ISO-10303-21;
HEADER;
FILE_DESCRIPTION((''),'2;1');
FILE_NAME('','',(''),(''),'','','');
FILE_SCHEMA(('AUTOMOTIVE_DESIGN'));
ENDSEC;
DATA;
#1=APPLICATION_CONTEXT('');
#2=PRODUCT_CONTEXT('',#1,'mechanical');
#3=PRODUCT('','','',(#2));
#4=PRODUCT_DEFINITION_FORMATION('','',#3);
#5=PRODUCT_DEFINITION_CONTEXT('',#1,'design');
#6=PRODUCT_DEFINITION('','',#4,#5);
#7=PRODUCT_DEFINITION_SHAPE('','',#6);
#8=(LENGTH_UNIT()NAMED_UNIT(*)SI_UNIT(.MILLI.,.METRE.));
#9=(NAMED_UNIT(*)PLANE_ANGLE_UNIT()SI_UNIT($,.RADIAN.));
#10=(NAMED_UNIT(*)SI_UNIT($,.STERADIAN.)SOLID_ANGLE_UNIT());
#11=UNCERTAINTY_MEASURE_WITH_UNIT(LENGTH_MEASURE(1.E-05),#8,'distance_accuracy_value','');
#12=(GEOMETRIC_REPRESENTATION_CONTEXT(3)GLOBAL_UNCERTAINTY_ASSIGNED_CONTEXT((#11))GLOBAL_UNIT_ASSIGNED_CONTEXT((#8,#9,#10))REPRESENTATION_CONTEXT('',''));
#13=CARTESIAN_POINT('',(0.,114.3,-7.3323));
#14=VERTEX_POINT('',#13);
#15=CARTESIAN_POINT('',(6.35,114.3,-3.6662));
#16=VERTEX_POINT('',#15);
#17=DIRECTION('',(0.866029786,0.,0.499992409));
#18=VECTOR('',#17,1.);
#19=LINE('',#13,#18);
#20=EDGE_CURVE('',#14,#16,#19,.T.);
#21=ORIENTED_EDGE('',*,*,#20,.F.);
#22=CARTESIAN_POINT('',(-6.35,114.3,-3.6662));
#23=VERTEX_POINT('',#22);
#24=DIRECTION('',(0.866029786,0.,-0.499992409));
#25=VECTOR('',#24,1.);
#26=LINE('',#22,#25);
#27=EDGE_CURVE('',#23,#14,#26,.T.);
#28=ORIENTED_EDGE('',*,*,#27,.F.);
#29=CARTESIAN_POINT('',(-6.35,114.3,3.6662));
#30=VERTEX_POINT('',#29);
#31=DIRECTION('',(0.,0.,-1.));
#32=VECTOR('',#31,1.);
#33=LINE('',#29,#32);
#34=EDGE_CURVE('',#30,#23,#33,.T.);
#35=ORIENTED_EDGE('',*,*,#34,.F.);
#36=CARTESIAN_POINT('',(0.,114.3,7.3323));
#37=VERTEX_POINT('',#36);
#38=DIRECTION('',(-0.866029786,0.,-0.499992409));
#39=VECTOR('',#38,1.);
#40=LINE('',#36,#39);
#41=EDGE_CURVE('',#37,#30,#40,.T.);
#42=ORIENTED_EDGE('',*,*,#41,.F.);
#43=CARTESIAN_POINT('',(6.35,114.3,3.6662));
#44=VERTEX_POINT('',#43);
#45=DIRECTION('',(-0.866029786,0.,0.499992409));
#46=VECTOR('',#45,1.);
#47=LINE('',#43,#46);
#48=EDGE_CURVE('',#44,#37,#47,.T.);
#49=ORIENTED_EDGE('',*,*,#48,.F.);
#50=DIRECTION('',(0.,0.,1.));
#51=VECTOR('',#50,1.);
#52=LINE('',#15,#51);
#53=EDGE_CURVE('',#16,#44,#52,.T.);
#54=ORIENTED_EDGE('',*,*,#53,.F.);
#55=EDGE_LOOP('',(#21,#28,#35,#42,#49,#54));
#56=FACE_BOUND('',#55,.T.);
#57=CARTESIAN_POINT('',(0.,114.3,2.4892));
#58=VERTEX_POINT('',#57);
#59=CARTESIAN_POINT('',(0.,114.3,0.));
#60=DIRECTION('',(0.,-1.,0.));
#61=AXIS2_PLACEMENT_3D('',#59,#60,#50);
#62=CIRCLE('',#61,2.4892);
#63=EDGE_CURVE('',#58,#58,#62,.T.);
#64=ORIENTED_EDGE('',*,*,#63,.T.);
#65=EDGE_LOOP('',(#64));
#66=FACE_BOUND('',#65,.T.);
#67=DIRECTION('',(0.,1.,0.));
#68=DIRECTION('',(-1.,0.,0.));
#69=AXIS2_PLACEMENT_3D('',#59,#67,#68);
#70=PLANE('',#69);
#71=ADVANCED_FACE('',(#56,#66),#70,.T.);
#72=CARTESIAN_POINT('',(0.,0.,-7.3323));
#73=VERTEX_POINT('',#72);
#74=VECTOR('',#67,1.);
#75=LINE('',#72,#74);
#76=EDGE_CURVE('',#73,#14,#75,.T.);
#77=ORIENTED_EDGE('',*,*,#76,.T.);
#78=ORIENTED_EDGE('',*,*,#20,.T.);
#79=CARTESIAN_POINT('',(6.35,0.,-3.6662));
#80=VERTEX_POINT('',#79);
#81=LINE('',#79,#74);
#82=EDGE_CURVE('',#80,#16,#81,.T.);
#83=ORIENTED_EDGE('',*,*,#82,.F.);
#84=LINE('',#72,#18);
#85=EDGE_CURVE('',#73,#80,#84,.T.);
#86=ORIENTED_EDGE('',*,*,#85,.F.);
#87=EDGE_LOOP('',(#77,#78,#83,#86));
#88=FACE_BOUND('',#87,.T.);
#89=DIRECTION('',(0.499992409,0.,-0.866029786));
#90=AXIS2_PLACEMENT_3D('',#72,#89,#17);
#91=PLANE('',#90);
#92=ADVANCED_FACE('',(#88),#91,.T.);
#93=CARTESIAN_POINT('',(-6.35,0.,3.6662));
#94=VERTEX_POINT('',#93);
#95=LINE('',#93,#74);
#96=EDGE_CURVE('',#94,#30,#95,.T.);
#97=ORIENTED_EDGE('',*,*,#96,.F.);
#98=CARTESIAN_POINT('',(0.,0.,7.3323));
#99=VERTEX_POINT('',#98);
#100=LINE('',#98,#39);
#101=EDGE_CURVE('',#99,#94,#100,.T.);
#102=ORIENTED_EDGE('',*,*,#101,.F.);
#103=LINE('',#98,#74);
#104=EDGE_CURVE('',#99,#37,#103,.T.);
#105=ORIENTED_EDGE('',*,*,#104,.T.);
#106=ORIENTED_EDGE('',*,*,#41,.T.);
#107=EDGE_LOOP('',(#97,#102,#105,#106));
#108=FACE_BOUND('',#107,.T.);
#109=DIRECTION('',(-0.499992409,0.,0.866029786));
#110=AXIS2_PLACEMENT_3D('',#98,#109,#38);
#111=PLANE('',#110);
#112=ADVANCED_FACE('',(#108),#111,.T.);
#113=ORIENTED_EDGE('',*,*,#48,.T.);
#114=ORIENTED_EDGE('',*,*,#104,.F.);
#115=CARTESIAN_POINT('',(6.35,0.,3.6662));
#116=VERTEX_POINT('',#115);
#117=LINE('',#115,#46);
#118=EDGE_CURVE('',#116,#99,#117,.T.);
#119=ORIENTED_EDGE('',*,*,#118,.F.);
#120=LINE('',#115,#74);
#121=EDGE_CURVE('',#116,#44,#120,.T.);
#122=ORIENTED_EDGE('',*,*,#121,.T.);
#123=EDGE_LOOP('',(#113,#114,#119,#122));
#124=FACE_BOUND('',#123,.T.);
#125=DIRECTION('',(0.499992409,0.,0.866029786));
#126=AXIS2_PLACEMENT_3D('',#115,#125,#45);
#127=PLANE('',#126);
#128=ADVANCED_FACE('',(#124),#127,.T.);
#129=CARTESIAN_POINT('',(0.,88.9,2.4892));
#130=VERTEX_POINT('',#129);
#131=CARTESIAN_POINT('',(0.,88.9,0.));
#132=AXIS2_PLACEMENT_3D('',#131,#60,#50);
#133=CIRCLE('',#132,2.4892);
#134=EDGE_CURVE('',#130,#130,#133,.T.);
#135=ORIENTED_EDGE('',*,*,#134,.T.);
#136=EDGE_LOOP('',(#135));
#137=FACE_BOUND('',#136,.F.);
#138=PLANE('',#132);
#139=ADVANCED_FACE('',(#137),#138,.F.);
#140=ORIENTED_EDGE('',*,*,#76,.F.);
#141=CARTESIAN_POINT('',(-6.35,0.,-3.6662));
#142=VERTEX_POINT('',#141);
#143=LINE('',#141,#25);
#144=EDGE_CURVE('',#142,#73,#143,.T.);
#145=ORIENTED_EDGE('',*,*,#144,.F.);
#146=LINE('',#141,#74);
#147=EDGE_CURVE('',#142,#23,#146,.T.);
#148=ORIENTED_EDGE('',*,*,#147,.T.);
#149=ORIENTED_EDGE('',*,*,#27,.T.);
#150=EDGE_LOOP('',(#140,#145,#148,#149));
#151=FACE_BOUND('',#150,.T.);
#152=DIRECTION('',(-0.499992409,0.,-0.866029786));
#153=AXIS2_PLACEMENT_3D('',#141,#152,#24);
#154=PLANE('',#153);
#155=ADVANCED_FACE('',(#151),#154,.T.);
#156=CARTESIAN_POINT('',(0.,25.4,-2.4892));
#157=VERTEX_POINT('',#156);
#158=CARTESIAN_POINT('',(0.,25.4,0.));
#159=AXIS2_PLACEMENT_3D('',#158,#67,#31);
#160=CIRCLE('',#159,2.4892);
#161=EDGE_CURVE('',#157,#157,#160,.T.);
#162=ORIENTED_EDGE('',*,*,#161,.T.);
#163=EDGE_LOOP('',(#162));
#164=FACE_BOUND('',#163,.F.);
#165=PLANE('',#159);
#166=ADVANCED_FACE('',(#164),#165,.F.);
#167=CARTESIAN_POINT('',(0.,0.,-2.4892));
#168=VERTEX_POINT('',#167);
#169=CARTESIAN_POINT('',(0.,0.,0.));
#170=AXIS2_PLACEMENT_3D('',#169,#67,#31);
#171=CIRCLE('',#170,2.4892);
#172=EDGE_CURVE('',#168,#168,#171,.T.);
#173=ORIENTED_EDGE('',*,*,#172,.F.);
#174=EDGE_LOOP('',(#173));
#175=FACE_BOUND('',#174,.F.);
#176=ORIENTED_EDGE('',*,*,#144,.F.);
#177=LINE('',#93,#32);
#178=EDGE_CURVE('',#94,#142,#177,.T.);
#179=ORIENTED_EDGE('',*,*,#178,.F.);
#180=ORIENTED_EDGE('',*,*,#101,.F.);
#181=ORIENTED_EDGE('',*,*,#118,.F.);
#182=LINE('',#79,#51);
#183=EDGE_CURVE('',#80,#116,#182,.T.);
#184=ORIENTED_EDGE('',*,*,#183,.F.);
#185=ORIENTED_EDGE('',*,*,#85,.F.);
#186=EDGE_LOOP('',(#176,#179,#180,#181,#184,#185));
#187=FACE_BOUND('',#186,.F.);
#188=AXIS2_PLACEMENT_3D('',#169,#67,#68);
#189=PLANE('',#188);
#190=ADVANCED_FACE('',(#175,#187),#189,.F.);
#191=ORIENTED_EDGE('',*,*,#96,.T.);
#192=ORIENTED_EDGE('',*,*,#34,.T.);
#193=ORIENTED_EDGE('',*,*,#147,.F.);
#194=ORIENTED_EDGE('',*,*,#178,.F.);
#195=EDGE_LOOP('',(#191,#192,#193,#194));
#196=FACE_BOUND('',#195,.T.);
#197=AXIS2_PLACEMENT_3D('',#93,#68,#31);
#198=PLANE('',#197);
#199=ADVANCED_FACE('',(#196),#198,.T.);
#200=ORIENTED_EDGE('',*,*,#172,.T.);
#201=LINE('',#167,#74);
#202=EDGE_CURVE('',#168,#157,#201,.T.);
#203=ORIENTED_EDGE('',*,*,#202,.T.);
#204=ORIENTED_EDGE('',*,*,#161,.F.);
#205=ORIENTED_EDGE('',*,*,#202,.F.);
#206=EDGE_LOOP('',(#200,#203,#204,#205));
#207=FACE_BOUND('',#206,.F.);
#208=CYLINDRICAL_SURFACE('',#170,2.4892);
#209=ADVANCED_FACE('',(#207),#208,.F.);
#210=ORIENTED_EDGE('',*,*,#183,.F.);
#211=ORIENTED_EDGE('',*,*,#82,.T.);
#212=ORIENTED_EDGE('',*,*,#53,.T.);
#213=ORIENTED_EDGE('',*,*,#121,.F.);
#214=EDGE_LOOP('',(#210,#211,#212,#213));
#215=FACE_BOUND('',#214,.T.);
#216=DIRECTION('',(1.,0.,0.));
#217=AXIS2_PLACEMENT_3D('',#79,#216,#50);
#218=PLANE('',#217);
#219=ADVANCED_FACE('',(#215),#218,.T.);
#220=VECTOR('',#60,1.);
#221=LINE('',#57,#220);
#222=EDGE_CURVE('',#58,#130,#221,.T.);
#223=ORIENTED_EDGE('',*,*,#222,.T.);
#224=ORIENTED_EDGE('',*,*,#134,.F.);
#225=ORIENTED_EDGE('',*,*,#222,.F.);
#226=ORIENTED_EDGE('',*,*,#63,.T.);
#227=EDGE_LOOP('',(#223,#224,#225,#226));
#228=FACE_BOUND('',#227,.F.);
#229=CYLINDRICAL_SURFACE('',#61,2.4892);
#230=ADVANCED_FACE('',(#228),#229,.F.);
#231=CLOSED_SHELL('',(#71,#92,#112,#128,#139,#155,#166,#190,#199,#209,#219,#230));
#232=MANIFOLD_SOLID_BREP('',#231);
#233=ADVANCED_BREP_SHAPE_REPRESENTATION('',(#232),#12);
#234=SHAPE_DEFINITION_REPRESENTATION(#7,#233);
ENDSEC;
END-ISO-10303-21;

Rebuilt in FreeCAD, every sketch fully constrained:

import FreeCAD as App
import Part
import Sketcher

V = App.Vector
Q = App.Units.Quantity


def add_polygon(sketch, points):
    """Adds a closed chain of lines whose ends are joined by coincident constraints."""
    first, n = sketch.GeometryCount, len(points)
    for a, b in zip(points, points[1:] + points[:1]):
        sketch.addGeometry(Part.LineSegment(App.Vector(*a, 0), App.Vector(*b, 0)), False)
    for i in range(n):
        sketch.addConstraint(Sketcher.Constraint("Coincident", first + i, 2, first + (i + 1) % n, 1))

doc = App.newDocument("Part")
params = doc.addObject("Spreadsheet::Sheet", "Params")
for row, (alias, value) in enumerate([
    ("pad1_length", "4.5 in"),
    ("sketch2_diameter", "0.196 in"),
    ("hole_diameter", "0.196 in"),
    ("hole_depth", "1 in"),
    ("sketch3_diameter", "0.196 in"),
    ("hole2_diameter", "0.196 in"),
    ("hole2_depth", "1 in"),
], start=1):
    params.set(f"A{row}", alias)
    params.set(f"B{row}", "=" + value)
    params.setAlias(f"B{row}", alias)

body = doc.addObject("PartDesign::Body", "Body")

# Sketch on XZ plane
sketch1 = body.newObject("Sketcher::SketchObject", "Sketch")
sketch1.AttachmentSupport = (doc.getObject("XZ_Plane"), [""])
sketch1.MapMode = "FlatFace"
add_polygon(sketch1, [(0, -7.3323), (-6.35, -3.6662), (-6.35, 3.6662), (0, 7.3323), (6.35, 3.6662), (6.35, -3.6662)])  # lines 0-5
sketch1.addConstraint([
    Sketcher.Constraint("Vertical", 1),
    Sketcher.Constraint("Vertical", 4),
    Sketcher.Constraint("Symmetric", 0, 2, 3, 2, -1, 1),
    Sketcher.Constraint("Symmetric", 2, 2, 5, 2, -1, 1),
    Sketcher.Constraint("PointOnObject", 2, 2, -2),
    Sketcher.Constraint("Parallel", 2, 5),
    Sketcher.Constraint("Horizontal", 1, 2, 3, 2),
    Sketcher.Constraint("DistanceX", 1, 2, 3, 2, Q("0.5 in")),
    Sketcher.Constraint("Angle", 0, Q("150.0005 deg")),
    Sketcher.Constraint("DistanceY", 0, 2, 2, 2, Q("0.433 in")),
])
pad1 = body.newObject("PartDesign::Pad", "Pad")
pad1.Profile = sketch1
pad1.setExpression("Length", "Params.pad1_length")
pad1.Reversed = True

# Sketch on XZ plane
sketch2 = body.newObject("Sketcher::SketchObject", "Sketch001")
sketch2.AttachmentSupport = (doc.getObject("XZ_Plane"), [""])
sketch2.MapMode = "FlatFace"
sketch2.addGeometry(Part.Circle(V(0, 0, 0), V(0, 0, 1), 2.4892), False)
sketch2.addConstraint([
    Sketcher.Constraint("Coincident", 0, 3, -1, 1),
    Sketcher.Constraint("Diameter", 0, Q("0.196 in")),
])
sketch2.setExpression("Constraints[1]", "Params.sketch2_diameter")
doc.recompute()
hole = body.newObject("PartDesign::Hole", "Hole")
hole.Profile = sketch2
hole.ThreadType = "None"
hole.setExpression("Diameter", "Params.hole_diameter")
hole.DepthType = "Dimension"
hole.setExpression("Depth", "Params.hole_depth")
hole.DrillPoint = "Flat"

# Sketch on XZ plane
sketch3 = body.newObject("Sketcher::SketchObject", "Sketch002")
sketch3.AttachmentSupport = (doc.getObject("XZ_Plane"), [""])
sketch3.MapMode = "FlatFace"
sketch3.AttachmentOffset = App.Placement(V(0, 0, -4.5 * 25.4), App.Rotation())
sketch3.addGeometry(Part.Circle(V(0, 0, 0), V(0, 0, 1), 2.4892), False)
sketch3.addConstraint([
    Sketcher.Constraint("Coincident", 0, 3, -1, 1),
    Sketcher.Constraint("Diameter", 0, Q("0.196 in")),
])
sketch3.setExpression("Constraints[1]", "Params.sketch3_diameter")
doc.recompute()
hole2 = body.newObject("PartDesign::Hole", "Hole001")
hole2.Profile = sketch3
hole2.ThreadType = "None"
hole2.setExpression("Diameter", "Params.hole2_diameter")
hole2.DepthType = "Dimension"
hole2.setExpression("Depth", "Params.hole2_depth")
hole2.DrillPoint = "Flat"
hole2.Reversed = True

doc.recompute()
